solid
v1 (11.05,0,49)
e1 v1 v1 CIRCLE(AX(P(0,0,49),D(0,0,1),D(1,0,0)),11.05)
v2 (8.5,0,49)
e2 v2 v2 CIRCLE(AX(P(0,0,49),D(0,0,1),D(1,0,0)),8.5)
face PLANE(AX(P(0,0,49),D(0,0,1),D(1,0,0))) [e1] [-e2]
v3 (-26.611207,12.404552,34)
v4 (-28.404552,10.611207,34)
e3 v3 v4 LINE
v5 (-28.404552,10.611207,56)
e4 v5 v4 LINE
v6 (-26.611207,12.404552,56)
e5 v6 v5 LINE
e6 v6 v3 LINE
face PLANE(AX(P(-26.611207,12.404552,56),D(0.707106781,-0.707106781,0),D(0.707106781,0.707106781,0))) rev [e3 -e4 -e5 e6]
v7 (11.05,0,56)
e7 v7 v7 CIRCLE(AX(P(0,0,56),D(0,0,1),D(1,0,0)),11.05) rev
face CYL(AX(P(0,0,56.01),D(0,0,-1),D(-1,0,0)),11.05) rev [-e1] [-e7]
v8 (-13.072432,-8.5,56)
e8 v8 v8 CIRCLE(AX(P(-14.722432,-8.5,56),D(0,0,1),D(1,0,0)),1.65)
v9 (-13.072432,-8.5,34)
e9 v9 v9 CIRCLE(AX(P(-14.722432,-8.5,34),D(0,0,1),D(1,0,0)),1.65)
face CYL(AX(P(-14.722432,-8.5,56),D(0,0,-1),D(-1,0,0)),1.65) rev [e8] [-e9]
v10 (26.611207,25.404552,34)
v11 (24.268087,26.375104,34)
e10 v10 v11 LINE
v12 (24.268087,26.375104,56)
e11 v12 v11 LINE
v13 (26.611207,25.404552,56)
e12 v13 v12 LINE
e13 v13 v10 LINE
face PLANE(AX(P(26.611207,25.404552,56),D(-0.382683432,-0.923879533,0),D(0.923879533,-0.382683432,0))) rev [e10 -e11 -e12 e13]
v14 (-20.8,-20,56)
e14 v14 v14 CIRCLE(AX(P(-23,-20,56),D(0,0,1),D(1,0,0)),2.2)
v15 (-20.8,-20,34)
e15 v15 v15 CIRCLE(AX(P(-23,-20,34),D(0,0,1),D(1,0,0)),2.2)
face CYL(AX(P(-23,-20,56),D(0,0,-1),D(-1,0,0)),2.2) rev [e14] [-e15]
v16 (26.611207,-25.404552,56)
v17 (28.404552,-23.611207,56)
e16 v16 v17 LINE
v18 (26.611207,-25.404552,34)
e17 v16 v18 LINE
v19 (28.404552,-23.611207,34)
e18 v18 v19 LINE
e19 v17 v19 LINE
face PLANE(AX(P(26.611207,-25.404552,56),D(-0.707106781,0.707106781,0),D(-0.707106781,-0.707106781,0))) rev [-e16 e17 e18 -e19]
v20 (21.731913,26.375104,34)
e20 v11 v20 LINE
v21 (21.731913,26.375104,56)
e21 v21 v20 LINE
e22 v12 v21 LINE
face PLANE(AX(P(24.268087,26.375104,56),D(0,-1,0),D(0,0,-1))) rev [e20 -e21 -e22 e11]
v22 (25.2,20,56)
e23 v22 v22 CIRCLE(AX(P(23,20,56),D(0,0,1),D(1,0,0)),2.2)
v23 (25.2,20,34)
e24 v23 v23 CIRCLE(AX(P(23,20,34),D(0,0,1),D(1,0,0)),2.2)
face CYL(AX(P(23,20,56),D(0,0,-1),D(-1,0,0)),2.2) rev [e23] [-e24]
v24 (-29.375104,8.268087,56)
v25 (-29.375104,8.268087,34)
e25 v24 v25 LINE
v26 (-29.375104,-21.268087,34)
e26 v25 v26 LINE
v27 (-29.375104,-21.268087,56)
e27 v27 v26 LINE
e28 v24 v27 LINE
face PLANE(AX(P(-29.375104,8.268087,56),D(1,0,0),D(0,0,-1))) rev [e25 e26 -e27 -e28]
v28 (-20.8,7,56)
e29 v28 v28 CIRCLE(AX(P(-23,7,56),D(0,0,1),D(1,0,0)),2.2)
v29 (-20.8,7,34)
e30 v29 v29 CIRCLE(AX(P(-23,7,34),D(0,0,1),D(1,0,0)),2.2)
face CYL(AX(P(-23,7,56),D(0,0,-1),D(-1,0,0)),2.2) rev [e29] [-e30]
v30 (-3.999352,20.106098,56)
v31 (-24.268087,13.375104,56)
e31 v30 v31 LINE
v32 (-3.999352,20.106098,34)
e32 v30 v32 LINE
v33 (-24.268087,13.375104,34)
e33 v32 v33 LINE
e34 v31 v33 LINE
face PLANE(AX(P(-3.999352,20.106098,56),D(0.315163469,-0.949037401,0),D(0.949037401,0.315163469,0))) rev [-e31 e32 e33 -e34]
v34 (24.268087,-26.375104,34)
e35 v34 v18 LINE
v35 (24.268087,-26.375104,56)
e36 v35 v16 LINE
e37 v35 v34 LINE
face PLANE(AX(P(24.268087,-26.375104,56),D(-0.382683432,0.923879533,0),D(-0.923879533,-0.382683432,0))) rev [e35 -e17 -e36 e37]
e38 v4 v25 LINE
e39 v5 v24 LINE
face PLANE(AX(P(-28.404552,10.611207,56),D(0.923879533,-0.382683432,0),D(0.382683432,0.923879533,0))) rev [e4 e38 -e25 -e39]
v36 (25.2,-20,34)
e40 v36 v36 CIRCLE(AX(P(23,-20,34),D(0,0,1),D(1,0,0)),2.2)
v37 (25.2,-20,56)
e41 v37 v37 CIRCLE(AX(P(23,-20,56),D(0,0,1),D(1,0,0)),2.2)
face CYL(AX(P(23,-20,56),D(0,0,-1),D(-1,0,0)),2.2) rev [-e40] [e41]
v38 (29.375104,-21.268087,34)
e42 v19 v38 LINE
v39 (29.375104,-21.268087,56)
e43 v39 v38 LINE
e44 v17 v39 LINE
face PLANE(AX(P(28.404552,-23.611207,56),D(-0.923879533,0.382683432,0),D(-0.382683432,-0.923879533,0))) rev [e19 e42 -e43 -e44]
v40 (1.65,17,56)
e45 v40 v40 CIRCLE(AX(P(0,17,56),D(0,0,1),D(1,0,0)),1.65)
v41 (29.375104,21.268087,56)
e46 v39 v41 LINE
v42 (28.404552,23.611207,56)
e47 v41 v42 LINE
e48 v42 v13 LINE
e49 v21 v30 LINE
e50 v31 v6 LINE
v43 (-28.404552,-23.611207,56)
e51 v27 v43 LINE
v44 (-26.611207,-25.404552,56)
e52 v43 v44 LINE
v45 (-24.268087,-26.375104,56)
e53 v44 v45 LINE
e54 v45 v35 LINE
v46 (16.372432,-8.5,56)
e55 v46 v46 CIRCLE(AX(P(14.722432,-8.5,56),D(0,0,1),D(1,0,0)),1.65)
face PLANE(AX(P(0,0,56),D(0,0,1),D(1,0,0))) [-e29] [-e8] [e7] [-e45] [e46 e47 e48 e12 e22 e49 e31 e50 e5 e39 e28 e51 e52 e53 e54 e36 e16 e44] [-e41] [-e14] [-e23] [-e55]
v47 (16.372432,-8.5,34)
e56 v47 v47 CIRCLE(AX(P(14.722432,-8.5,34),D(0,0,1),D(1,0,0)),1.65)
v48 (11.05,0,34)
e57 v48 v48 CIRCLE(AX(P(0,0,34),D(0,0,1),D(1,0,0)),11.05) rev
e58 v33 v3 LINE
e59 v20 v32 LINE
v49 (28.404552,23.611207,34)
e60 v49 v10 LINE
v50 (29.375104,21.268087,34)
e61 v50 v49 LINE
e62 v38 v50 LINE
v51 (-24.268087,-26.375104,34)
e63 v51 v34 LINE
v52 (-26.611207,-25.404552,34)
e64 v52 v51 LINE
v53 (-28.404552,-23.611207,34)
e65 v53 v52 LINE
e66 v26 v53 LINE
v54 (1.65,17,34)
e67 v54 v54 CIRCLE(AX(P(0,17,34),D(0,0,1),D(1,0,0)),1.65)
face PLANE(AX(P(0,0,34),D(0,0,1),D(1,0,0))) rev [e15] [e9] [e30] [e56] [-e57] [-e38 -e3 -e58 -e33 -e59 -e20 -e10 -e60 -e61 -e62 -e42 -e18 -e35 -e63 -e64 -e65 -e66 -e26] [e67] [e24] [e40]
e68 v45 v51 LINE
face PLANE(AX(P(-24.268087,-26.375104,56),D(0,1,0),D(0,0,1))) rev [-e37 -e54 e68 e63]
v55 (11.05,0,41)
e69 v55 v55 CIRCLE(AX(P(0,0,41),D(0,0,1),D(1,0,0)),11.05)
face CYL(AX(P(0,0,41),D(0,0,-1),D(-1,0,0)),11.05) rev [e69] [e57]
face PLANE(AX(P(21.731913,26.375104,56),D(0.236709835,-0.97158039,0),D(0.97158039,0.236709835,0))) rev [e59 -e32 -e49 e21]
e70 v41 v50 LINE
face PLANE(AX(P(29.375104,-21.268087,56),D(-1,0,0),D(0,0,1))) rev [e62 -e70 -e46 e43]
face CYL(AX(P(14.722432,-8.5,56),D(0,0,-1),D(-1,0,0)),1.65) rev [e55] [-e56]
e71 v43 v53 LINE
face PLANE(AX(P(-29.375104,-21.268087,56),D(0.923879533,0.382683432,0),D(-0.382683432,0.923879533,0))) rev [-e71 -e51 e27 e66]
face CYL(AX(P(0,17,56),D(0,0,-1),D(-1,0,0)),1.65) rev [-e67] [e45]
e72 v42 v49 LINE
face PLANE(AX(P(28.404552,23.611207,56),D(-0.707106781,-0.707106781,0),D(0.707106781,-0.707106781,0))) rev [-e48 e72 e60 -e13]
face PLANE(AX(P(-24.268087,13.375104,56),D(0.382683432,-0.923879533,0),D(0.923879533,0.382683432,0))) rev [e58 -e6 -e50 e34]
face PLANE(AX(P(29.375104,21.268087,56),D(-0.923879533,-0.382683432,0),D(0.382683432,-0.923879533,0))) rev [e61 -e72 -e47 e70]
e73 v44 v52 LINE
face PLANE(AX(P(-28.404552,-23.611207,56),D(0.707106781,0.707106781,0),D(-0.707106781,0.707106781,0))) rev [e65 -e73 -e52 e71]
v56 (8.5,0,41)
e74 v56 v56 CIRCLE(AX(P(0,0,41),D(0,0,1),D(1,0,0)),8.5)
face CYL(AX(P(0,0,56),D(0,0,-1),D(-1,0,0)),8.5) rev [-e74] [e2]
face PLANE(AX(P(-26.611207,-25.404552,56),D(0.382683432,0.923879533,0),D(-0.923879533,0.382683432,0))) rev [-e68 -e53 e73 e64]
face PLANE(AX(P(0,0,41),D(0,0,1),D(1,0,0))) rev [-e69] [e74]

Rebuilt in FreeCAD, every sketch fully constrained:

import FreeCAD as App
import Part
import Sketcher
Q = App.Units.Quantity


def add_polygon(sketch, points):
    """Adds a closed chain of lines whose ends are joined by coincident constraints."""
    first, n = sketch.GeometryCount, len(points)
    for a, b in zip(points, points[1:] + points[:1]):
        sketch.addGeometry(Part.LineSegment(App.Vector(*a, 0), App.Vector(*b, 0)), False)
    for i in range(n):
        sketch.addConstraint(Sketcher.Constraint("Coincident", first + i, 2, first + (i + 1) % n, 1))

doc = App.newDocument("Part")
body = doc.addObject("PartDesign::Body", "Body")

# Sketch on XY plane
sketch1 = body.newObject("Sketcher::SketchObject", "Sketch")
sketch1.AttachmentSupport = (doc.getObject("XY_Plane"), [""])
sketch1.MapMode = "FlatFace"
sketch1.AttachmentOffset = App.Placement(App.Vector(0, 0, 34), App.Rotation())
add_polygon(sketch1, [(-24.3, -26.4), (24.3, -26.4), (26.6, -25.4), (28.4, -23.6), (29.4, -21.3), (29.4, 21.3), (28.4, 23.6), (26.6, 25.4), (24.3, 26.4), (21.7, 26.4), (-4, 20.1), (-24.3, 13.4), (-26.6, 12.4), (-28.4, 10.6), (-29.4, 8.3), (-29.4, -21.3), (-28.4, -23.6), (-26.6, -25.4)])  # lines 0-17
sketch1.addGeometry(Part.Circle(App.Vector(-23, -20, 0), App.Vector(0, 0, 1), 2.2), False)  # 18
sketch1.addGeometry(Part.Circle(App.Vector(-14.7, -8.5, 0), App.Vector(0, 0, 1), 1.6), False)  # 19
sketch1.addGeometry(Part.Circle(App.Vector(23, -20, 0), App.Vector(0, 0, 1), 2.2), False)  # 20
sketch1.addGeometry(Part.Circle(App.Vector(14.7, -8.5, 0), App.Vector(0, 0, 1), 1.6), False)  # 21
sketch1.addGeometry(Part.Circle(App.Vector(-23, 7, 0), App.Vector(0, 0, 1), 2.2), False)  # 22
sketch1.addGeometry(Part.Circle(App.Vector(0, 0, 0), App.Vector(0, 0, 1), 8.5), False)  # 23
sketch1.addGeometry(Part.Circle(App.Vector(0, 17, 0), App.Vector(0, 0, 1), 1.6), False)  # 24
sketch1.addGeometry(Part.Circle(App.Vector(23, 20, 0), App.Vector(0, 0, 1), 2.2), False)  # 25
sketch1.addConstraint([
    Sketcher.Constraint("Horizontal", 0),
    Sketcher.Constraint("Vertical", 4),
    Sketcher.Constraint("Horizontal", 8),
    Sketcher.Constraint("Vertical", 14),
    Sketcher.Constraint("Coincident", 23, 3, -1, 1),
    Sketcher.Constraint("Equal", 18, 20),
    Sketcher.Constraint("Equal", 19, 21),
    Sketcher.Constraint("Equal", 20, 22),
    Sketcher.Constraint("Equal", 21, 24),
    Sketcher.Constraint("Equal", 22, 25),
    Sketcher.Constraint("Symmetric", 18, 3, 25, 3, -1, 1),
    Sketcher.Constraint("Symmetric", 4, 2, 14, 2, -1, 1),
    Sketcher.Constraint("Symmetric", 5, 2, 15, 2, -1, 1),
    Sketcher.Constraint("Symmetric", 6, 2, 16, 2, -1, 1),
    Sketcher.Constraint("Symmetric", 7, 2, 17, 2, -1, 1),
    Sketcher.Constraint("Symmetric", 18, 3, 20, 3, -2),
    Sketcher.Constraint("Symmetric", 19, 3, 21, 3, -2),
    Sketcher.Constraint("Symmetric", 2, 2, 15, 2, -2),
    Sketcher.Constraint("Symmetric", 1, 2, 16, 2, -2),
    Sketcher.Constraint("PointOnObject", 24, 3, -2),
    Sketcher.Constraint("Perpendicular", 1, 5),
    Sketcher.Constraint("Perpendicular", 2, 6),
    Sketcher.Constraint("Perpendicular", 3, 7),
    Sketcher.Constraint("Perpendicular", 5, 11),
    Sketcher.Constraint("Perpendicular", 6, 12),
    Sketcher.Constraint("Perpendicular", 7, 13),
    Sketcher.Constraint("Horizontal", 3, 2, 14, 2),
    Sketcher.Constraint("Vertical", 18, 3, 22, 3),
    Sketcher.Constraint("Vertical", 12, 2, 15, 2),
    Sketcher.Constraint("Vertical", 11, 2, 16, 2),
    Sketcher.Constraint("Vertical", 10, 2, 17, 2),
    Sketcher.Constraint("Equal", 1, 2),
    Sketcher.Constraint("Equal", 2, 3),
    Sketcher.Constraint("Diameter", 23, 17.0),
    Sketcher.Constraint("Diameter", 18, 4.4),
    Sketcher.Constraint("Diameter", 19, 3.3),
    Sketcher.Constraint("DistanceX", 18, 3, -1, 1, 23.0),
    Sketcher.Constraint("DistanceY", 18, 3, -1, 1, 20.0),
    Sketcher.Constraint("DistanceY", -1, 1, 22, 3, 7.0),
    Sketcher.Constraint("DistanceY", -1, 1, 24, 3, 17.0),
    Sketcher.Constraint("Angle", 1, Q("22.5 deg")),
    Sketcher.Constraint("DistanceY", 19, 3, -1, 1, 8.5),
    Sketcher.Constraint("DistanceY", -1, 1, 9, 2, 20.106098),
    Sketcher.Constraint("DistanceX", 12, 2, 9, 2, 24.405201),
    Sketcher.Constraint("Distance", 10, 21.357151),
    Sketcher.Constraint("DistanceX", 0, 1, 0, 2, 48.536174),
    Sketcher.Constraint("DistanceX", 8, 2, 8, 1, 2.536174),
    Sketcher.Constraint("DistanceY", 4, 1, 4, 2, 42.536174),
    Sketcher.Constraint("DistanceY", 14, 2, 14, 1, 29.536174),
    Sketcher.Constraint("DistanceX", 19, 3, -1, 1, 14.722432),
])
pad1 = body.newObject("PartDesign::Pad", "Pad")
pad1.Profile = sketch1
pad1.Length = 22

# Sketch on XY plane
sketch2 = body.newObject("Sketcher::SketchObject", "Sketch001")
sketch2.AttachmentSupport = (doc.getObject("XY_Plane"), [""])
sketch2.MapMode = "FlatFace"
sketch2.AttachmentOffset = App.Placement(App.Vector(0, 0, 33.99), App.Rotation())
sketch2.addGeometry(Part.Circle(App.Vector(0, 0, 0), App.Vector(0, 0, 1), 11), False)
sketch2.addConstraint([
    Sketcher.Constraint("Coincident", 0, 3, -1, 1),
    Sketcher.Constraint("Diameter", 0, 22.1),
])
pocket1 = body.newObject("PartDesign::Pocket", "Pocket")
pocket1.Profile = sketch2
pocket1.Length = 7.01
pocket1.Reversed = True

# Sketch on XY plane
sketch3 = body.newObject("Sketcher::SketchObject", "Sketch002")
sketch3.AttachmentSupport = (doc.getObject("XY_Plane"), [""])
sketch3.MapMode = "FlatFace"
sketch3.AttachmentOffset = App.Placement(App.Vector(0, 0, 49), App.Rotation())
sketch3.addGeometry(Part.Circle(App.Vector(0, 0, 0), App.Vector(0, 0, 1), 11), False)
sketch3.addConstraint([
    Sketcher.Constraint("Coincident", 0, 3, -1, 1),
    Sketcher.Constraint("Diameter", 0, 22.1),
])
pocket2 = body.newObject("PartDesign::Pocket", "Pocket001")
pocket2.Profile = sketch3
pocket2.Length = 7.01
pocket2.Reversed = True

doc.recompute()
